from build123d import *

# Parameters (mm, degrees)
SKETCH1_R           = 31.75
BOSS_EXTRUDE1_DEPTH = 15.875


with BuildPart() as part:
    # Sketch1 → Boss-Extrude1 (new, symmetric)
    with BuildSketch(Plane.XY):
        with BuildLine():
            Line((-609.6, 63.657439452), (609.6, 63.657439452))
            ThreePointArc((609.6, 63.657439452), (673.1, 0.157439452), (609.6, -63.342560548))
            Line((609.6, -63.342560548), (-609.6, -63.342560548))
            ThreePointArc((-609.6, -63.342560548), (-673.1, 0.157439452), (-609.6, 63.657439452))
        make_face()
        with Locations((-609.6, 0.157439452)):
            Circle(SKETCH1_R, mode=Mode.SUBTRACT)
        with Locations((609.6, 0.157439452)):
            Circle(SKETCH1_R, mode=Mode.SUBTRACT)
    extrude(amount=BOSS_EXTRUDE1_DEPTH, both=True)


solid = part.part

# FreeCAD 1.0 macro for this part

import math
import FreeCAD as App
import Part
import Sketcher

V = App.Vector
Q = App.Units.Quantity

doc = App.newDocument("Part")
body = doc.addObject("PartDesign::Body", "Body")

# Sketch on XY plane
sketch1 = body.newObject("Sketcher::SketchObject", "Sketch")
sketch1.AttachmentSupport = (doc.getObject("XY_Plane"), [""])
sketch1.MapMode = "FlatFace"
sketch1.addGeometry(Part.LineSegment(V(610, 64, 0), V(-610, 64, 0)), False)
sketch1.addGeometry(Part.ArcOfCircle(Part.Circle(V(-610, 0, 0), V(0, 0, 1), 64), math.radians(90), math.radians(270)), False)
sketch1.addGeometry(Part.LineSegment(V(-610, -63, 0), V(610, -63, 0)), False)
sketch1.addGeometry(Part.ArcOfCircle(Part.Circle(V(610, 0, 0), V(0, 0, 1), 64), math.radians(-90), math.radians(90)), False)
sketch1.addGeometry(Part.Circle(V(610, 0, 0), V(0, 0, 1), 32), False)
sketch1.addGeometry(Part.Circle(V(-610, 0, 0), V(0, 0, 1), 32), False)
sketch1.addConstraint(Sketcher.Constraint("Tangent", 0, 2, 1, 1))
sketch1.addConstraint(Sketcher.Constraint("Tangent", 1, 2, 2, 1))
sketch1.addConstraint(Sketcher.Constraint("Tangent", 2, 2, 3, 1))
sketch1.addConstraint(Sketcher.Constraint("Tangent", 3, 2, 0, 1))
sketch1.addConstraint(Sketcher.Constraint("Horizontal", 0))
sketch1.addConstraint(Sketcher.Constraint("Horizontal", 2))
sketch1.addConstraint(Sketcher.Constraint("Coincident", 4, 3, 3, 3))
sketch1.addConstraint(Sketcher.Constraint("Coincident", 5, 3, 1, 3))
sketch1.addConstraint(Sketcher.Constraint("Equal", 4, 5))
sketch1.addConstraint(Sketcher.Constraint("Diameter", 4, Q("2.5 in")))
sketch1.addConstraint(Sketcher.Constraint("Radius", 1, Q("2.5 in")))
sketch1.addConstraint(Sketcher.Constraint("DistanceX", 0, 2, 0, 1, Q("48 in")))
sketch1.addConstraint(Sketcher.Constraint("DistanceX", 1, 3, -1, 1, Q("24 in")))
sketch1.addConstraint(Sketcher.Constraint("DistanceY", -1, 1, 1, 3, 0.157439))
pad1 = body.newObject("PartDesign::Pad", "Pad")
pad1.Profile = sketch1
pad1.Length = Q("1.25 in")
pad1.Midplane = True

doc.recompute()
